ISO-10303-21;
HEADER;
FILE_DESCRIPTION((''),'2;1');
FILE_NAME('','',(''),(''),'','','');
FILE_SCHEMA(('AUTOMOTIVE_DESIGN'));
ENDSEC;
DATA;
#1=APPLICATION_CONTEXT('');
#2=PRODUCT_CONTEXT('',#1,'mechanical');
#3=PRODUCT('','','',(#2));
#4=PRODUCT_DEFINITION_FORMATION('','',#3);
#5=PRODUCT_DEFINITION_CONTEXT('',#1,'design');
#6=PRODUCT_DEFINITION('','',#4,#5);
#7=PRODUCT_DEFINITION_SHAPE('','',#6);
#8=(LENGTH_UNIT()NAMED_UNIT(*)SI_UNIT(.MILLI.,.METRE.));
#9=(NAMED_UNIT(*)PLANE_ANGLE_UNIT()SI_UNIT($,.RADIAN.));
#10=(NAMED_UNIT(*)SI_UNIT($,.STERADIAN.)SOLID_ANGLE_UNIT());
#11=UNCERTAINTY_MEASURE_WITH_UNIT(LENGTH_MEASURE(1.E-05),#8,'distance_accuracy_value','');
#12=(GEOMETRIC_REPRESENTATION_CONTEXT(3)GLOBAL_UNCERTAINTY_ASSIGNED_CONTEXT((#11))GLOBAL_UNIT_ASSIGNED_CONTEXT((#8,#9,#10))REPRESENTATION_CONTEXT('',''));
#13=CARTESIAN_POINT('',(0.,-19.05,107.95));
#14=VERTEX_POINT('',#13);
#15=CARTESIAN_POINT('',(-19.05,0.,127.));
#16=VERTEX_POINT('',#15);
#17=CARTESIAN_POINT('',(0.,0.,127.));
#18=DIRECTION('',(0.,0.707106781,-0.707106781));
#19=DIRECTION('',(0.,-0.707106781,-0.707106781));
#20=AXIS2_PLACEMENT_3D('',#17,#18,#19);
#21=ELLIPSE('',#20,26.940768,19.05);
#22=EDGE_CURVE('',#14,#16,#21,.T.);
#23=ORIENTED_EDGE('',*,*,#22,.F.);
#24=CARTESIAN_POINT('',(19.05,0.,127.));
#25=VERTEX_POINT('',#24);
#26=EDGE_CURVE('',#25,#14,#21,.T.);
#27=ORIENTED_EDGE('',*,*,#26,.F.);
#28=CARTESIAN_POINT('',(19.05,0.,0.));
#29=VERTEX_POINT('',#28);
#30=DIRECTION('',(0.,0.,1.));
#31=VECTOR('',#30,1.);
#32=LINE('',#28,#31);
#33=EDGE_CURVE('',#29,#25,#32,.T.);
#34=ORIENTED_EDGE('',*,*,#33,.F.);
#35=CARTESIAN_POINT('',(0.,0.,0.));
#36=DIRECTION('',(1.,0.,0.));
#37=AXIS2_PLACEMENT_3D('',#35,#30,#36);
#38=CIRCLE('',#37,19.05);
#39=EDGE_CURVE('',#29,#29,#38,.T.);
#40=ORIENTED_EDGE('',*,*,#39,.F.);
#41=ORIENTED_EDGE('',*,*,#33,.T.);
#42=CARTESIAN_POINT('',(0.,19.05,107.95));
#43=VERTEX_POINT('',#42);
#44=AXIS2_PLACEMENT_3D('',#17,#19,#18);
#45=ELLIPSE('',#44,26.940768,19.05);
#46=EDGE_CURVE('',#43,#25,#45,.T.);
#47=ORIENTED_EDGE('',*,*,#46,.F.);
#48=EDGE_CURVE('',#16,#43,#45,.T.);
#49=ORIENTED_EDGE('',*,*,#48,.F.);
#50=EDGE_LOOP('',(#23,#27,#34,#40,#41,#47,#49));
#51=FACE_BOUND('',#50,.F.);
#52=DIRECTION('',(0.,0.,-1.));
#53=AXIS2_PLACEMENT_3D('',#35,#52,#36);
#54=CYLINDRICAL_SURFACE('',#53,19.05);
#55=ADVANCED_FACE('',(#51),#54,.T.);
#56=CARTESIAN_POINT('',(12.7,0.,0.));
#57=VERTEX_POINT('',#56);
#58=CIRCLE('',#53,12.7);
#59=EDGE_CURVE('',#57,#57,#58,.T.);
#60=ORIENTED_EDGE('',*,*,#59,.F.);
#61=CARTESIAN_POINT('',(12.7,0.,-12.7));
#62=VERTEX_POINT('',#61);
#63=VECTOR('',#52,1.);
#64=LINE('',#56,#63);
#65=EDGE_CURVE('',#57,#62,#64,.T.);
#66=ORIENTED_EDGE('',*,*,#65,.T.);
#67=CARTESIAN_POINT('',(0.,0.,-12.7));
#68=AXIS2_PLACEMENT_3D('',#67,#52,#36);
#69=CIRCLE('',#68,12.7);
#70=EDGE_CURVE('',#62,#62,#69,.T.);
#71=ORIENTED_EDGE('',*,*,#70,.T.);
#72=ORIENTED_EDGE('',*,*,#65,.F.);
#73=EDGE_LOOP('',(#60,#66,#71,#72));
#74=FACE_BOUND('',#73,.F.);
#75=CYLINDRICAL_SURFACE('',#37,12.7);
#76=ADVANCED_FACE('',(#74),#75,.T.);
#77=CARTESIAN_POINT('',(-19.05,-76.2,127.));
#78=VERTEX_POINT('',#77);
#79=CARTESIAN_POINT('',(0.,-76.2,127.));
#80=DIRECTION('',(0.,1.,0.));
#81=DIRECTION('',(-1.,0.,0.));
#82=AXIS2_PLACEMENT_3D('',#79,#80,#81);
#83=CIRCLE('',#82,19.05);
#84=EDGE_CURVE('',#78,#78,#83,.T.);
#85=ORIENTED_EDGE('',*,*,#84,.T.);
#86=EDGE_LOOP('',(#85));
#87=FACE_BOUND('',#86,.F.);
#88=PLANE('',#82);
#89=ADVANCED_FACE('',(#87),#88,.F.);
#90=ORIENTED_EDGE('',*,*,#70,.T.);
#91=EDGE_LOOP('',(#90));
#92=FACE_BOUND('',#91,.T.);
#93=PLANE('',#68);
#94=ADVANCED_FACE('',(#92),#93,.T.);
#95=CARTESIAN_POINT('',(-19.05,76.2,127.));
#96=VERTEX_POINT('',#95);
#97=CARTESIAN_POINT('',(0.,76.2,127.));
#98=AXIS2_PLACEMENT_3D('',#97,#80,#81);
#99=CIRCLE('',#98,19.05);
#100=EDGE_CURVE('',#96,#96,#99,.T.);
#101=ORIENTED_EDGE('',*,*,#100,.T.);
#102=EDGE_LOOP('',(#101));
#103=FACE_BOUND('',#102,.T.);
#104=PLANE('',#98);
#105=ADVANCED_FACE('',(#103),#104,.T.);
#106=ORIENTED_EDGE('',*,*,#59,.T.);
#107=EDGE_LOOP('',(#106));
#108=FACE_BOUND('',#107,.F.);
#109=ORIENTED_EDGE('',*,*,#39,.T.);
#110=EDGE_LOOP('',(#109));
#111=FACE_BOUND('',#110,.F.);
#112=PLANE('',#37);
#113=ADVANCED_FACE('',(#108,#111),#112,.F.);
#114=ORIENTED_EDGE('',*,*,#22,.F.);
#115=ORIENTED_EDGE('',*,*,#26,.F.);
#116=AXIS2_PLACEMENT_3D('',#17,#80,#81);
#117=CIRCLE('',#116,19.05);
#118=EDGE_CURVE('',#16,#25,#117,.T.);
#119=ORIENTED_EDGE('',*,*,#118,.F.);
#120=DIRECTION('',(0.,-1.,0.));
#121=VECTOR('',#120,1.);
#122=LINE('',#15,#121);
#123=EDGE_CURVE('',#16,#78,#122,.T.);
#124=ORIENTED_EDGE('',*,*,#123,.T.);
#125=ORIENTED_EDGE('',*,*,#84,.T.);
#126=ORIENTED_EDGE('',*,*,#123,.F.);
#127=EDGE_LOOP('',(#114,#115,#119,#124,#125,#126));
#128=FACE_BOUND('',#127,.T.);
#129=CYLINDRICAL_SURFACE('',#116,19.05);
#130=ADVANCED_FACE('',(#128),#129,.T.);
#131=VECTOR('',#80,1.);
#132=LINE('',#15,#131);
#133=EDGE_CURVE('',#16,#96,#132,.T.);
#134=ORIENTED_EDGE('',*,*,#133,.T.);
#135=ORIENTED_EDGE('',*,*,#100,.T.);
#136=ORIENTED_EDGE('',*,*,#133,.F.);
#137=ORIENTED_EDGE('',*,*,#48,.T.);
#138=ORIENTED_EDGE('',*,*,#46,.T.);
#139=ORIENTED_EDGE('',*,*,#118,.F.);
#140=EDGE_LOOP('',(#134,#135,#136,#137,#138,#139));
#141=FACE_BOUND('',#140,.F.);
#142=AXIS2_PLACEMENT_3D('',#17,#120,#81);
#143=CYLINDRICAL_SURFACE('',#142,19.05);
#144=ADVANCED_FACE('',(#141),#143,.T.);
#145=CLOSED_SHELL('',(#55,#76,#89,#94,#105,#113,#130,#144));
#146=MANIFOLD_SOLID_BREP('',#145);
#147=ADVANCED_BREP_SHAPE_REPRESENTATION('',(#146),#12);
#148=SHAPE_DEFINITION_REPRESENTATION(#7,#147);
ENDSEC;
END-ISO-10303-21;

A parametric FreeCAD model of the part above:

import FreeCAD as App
import Part
import Sketcher
from FreeCAD import Vector
Q = App.Units.Quantity

doc = App.newDocument("Part")
params = doc.addObject("Spreadsheet::Sheet", "Params")
for row, (alias, value) in enumerate([
    ("sketch1_diameter", "1.5 in"),
    ("pad1_length", "5 in"),
    ("sketch2_diameter", "1 in"),
    ("pad2_length", "0.5 in"),
    ("sketch3_diameter", "1.5 in"),
    ("pad3_length", "3 in"),
    ("pad3_length2", "3 in"),
], start=1):
    params.set(f"A{row}", alias)
    params.set(f"B{row}", "=" + value)
    params.setAlias(f"B{row}", alias)

body = doc.addObject("PartDesign::Body", "Body")

sketch1 = doc.addObject("Sketcher::SketchObject", "Sketch")
body.addObject(sketch1)
sketch1.AttachmentSupport = (doc.XY_Plane, [""])
sketch1.MapMode = "FlatFace"
sketch1.addGeometry(Part.Circle(Vector(0, 0, 0), Vector(0, 0, 1), 19), False)
sketch1.addConstraint([
    Sketcher.Constraint("Coincident", 0, 3, -1, 1),
    Sketcher.Constraint("Diameter", 0, Q("1.5 in")),
])
sketch1.setExpression("Constraints[1]", "Params.sketch1_diameter")
pad1 = doc.addObject("PartDesign::Pad", "Pad")
body.addObject(pad1)
pad1.Profile = sketch1
pad1.setExpression("Length", "Params.pad1_length")

sketch2 = doc.addObject("Sketcher::SketchObject", "Sketch001")
body.addObject(sketch2)
sketch2.AttachmentSupport = (doc.XY_Plane, [""])
sketch2.MapMode = "FlatFace"
sketch2.addGeometry(Part.Circle(Vector(0, 0, 0), Vector(0, 0, 1), 13), False)
sketch2.addConstraint([
    Sketcher.Constraint("Coincident", 0, 3, -1, 1),
    Sketcher.Constraint("Diameter", 0, Q("1 in")),
])
sketch2.setExpression("Constraints[1]", "Params.sketch2_diameter")
pad2 = doc.addObject("PartDesign::Pad", "Pad001")
body.addObject(pad2)
pad2.Profile = sketch2
pad2.setExpression("Length", "Params.pad2_length")
pad2.Reversed = True

sketch3 = doc.addObject("Sketcher::SketchObject", "Sketch002")
body.addObject(sketch3)
sketch3.AttachmentSupport = (doc.XZ_Plane, [""])
sketch3.MapMode = "FlatFace"
sketch3.addGeometry(Part.Circle(Vector(0, 127, 0), Vector(0, 0, 1), 19), False)
sketch3.addConstraint([
    Sketcher.Constraint("PointOnObject", 0, 3, -2),
    Sketcher.Constraint("Diameter", 0, Q("1.5 in")),
    Sketcher.Constraint("DistanceY", -1, 1, 0, 3, Q("5 in")),
])
sketch3.setExpression("Constraints[1]", "Params.sketch3_diameter")
pad3 = doc.addObject("PartDesign::Pad", "Pad002")
body.addObject(pad3)
pad3.Profile = sketch3
pad3.Type = "TwoLengths"
pad3.setExpression("Length", "Params.pad3_length")
pad3.setExpression("Length2", "Params.pad3_length2")
pad3.Reversed = True

doc.recompute()
